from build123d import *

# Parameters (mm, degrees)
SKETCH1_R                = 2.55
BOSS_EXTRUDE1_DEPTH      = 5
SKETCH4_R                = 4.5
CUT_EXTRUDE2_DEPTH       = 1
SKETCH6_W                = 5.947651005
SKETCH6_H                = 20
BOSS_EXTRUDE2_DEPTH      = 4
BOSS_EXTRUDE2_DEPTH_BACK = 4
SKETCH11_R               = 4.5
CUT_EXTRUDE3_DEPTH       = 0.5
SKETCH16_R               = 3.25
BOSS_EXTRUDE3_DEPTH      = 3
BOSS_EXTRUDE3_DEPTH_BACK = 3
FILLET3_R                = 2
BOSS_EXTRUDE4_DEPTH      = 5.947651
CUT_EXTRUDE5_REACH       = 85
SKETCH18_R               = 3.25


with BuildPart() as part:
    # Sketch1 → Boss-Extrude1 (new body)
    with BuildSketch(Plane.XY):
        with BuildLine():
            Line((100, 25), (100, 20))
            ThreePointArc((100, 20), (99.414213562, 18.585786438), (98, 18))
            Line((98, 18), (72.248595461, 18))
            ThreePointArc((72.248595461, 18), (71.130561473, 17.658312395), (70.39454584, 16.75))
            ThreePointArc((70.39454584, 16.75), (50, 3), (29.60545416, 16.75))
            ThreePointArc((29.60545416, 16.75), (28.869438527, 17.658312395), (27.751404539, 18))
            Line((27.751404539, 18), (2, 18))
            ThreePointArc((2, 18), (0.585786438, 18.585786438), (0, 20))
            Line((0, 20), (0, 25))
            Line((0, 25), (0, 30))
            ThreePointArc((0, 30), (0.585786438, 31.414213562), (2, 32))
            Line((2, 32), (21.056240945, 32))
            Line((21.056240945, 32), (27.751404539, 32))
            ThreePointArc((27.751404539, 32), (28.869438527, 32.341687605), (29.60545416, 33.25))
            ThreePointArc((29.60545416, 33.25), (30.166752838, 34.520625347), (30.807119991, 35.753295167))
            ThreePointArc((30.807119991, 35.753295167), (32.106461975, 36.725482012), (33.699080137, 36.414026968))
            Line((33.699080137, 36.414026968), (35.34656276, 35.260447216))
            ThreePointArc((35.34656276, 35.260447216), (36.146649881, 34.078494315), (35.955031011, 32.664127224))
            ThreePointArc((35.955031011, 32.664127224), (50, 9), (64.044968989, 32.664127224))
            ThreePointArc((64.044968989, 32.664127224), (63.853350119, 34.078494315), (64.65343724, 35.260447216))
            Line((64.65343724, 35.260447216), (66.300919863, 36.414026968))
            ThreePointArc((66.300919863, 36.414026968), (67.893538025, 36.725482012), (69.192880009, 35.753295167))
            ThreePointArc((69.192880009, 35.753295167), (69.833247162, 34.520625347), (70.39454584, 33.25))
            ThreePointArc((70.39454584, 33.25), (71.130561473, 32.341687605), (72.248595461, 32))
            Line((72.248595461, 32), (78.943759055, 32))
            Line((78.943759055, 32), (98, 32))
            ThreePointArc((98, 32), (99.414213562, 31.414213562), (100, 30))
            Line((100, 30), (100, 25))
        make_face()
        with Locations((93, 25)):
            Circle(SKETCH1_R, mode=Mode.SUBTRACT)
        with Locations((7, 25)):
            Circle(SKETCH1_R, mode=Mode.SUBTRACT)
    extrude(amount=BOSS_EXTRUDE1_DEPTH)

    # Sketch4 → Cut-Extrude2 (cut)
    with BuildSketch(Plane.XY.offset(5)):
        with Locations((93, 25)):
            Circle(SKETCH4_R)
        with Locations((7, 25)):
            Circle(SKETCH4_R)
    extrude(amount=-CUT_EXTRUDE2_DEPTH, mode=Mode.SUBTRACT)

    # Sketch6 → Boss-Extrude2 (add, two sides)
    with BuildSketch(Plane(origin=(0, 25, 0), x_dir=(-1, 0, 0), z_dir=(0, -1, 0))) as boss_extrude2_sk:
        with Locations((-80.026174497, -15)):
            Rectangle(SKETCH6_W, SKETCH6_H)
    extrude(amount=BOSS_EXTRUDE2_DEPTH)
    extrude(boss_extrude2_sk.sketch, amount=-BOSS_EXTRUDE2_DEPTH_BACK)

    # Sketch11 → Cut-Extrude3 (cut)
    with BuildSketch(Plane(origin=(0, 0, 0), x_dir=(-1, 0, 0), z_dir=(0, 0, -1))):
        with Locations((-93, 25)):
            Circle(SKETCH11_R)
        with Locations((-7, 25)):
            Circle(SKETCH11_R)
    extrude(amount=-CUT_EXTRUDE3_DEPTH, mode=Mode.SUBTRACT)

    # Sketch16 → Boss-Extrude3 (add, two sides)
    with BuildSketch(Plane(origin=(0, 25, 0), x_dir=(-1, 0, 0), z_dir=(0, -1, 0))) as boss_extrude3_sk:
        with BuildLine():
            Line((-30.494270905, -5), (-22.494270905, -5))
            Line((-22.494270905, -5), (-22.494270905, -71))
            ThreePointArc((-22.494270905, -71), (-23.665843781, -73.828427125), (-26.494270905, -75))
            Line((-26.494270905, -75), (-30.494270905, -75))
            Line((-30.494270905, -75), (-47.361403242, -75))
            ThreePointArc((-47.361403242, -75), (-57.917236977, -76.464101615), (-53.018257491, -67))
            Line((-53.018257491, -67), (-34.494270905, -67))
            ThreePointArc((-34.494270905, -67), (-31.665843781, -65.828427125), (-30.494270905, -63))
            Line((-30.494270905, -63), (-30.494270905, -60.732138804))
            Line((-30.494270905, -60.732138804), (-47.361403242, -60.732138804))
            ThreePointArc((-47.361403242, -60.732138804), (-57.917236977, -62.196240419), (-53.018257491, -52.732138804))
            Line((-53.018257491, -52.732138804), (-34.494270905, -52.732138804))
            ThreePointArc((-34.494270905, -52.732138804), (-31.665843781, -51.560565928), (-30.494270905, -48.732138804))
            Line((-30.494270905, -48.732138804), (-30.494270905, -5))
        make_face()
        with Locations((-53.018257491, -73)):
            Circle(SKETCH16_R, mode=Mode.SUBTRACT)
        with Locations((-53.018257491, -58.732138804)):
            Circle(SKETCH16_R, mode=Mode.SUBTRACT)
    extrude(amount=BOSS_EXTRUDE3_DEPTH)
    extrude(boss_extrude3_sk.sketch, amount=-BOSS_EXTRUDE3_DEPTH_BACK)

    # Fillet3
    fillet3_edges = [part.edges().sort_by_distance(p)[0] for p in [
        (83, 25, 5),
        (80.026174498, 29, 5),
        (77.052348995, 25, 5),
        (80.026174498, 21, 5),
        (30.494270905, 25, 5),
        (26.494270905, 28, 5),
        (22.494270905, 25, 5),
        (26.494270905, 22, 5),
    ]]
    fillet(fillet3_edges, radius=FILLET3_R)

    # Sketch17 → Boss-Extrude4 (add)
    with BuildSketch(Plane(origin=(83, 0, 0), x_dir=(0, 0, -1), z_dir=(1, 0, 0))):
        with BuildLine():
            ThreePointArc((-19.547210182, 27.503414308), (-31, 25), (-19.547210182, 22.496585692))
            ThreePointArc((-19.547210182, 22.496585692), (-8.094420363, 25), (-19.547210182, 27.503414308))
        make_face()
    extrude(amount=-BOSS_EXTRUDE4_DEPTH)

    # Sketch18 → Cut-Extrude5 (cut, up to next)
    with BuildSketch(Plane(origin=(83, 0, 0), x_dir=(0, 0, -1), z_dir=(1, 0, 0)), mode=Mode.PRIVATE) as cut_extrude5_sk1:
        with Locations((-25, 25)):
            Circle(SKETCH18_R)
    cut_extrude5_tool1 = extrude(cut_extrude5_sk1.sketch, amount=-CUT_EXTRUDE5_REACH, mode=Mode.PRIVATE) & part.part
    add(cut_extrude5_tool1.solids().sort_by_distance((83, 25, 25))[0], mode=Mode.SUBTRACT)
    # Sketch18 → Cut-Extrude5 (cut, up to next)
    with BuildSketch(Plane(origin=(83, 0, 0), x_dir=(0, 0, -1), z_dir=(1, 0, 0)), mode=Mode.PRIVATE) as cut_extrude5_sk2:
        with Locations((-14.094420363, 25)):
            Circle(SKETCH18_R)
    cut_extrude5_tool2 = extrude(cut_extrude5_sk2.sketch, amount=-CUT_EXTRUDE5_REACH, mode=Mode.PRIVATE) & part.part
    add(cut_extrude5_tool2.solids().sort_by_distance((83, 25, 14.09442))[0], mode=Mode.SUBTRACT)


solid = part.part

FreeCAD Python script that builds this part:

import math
import FreeCAD as App
import Part
import Sketcher
from FreeCAD import Vector
Q = App.Units.Quantity


def edges_at(feature, points):
    """Names of the edges that pass closest to the given points."""
    edges = feature.Shape.Edges
    near = lambda p: min(range(len(edges)), key=lambda i: edges[i].distToShape(Part.Vertex(*p))[0])
    return sorted({f"Edge{near(p) + 1}" for p in points})

doc = App.newDocument("Part")
body = doc.addObject("PartDesign::Body", "Body")

# Sketch on XY plane
sketch1 = doc.addObject("Sketcher::SketchObject", "Sketch")
body.addObject(sketch1)
sketch1.AttachmentSupport = (doc.XY_Plane, [""])
sketch1.MapMode = "FlatFace"
sketch1.addGeometry([
    Part.ArcOfCircle(Part.Circle(Vector(98, 20, 0), Vector(0, 0, 1), 2), math.radians(-90), math.radians(0)),  # 0
    Part.LineSegment(Vector(100, 20, 0), Vector(100, 30, 0)),  # 1
    Part.ArcOfCircle(Part.Circle(Vector(98, 30, 0), Vector(0, 0, 1), 2), math.radians(0), math.radians(90)),  # 2
    Part.LineSegment(Vector(98, 32, 0), Vector(72.2, 32, 0)),  # 3
    Part.ArcOfCircle(Part.Circle(Vector(72.2, 34, 0), Vector(0, 0, 1), 2), math.radians(-158), math.radians(-90)),  # 4
    Part.ArcOfCircle(Part.Circle(Vector(50, 25, 0), Vector(0, 0, 1), 22), math.radians(22.02), math.radians(29.26)),  # 5
    Part.ArcOfCircle(Part.Circle(Vector(67.4, 34.8, 0), Vector(0, 0, 1), 2), math.radians(29), math.radians(125)),  # 6
    Part.LineSegment(Vector(66.3, 36.4, 0), Vector(64.7, 35.3, 0)),  # 7
    Part.ArcOfCircle(Part.Circle(Vector(65.8, 33.6, 0), Vector(0, 0, 1), 2), math.radians(125), math.radians(209)),  # 8
    Part.ArcOfCircle(Part.Circle(Vector(50, 25, 0), Vector(0, 0, 1), 16), math.radians(151), math.radians(389)),  # 9
    Part.ArcOfCircle(Part.Circle(Vector(34.2, 33.6, 0), Vector(0, 0, 1), 2), math.radians(-29), math.radians(55)),  # 10
    Part.LineSegment(Vector(35.3, 35.3, 0), Vector(33.7, 36.4, 0)),  # 11
    Part.ArcOfCircle(Part.Circle(Vector(32.6, 34.8, 0), Vector(0, 0, 1), 2), math.radians(55), math.radians(151)),  # 12
    Part.ArcOfCircle(Part.Circle(Vector(50, 25, 0), Vector(0, 0, 1), 22), math.radians(150.74), math.radians(157.98)),  # 13
    Part.ArcOfCircle(Part.Circle(Vector(27.8, 34, 0), Vector(0, 0, 1), 2), math.radians(-90), math.radians(-22)),  # 14
    Part.LineSegment(Vector(27.8, 32, 0), Vector(2, 32, 0)),  # 15
    Part.ArcOfCircle(Part.Circle(Vector(2, 30, 0), Vector(0, 0, 1), 2), math.radians(90), math.radians(180)),  # 16
    Part.LineSegment(Vector(0, 30, 0), Vector(0, 20, 0)),  # 17
    Part.ArcOfCircle(Part.Circle(Vector(2, 20, 0), Vector(0, 0, 1), 2), math.radians(-180), math.radians(-90)),  # 18
    Part.LineSegment(Vector(2, 18, 0), Vector(27.8, 18, 0)),  # 19
    Part.ArcOfCircle(Part.Circle(Vector(27.8, 16, 0), Vector(0, 0, 1), 2), math.radians(22), math.radians(90)),  # 20
    Part.ArcOfCircle(Part.Circle(Vector(50, 25, 0), Vector(0, 0, 1), 22), math.radians(-158), math.radians(-22)),  # 21
    Part.ArcOfCircle(Part.Circle(Vector(72.2, 16, 0), Vector(0, 0, 1), 2), math.radians(90), math.radians(158)),  # 22
    Part.LineSegment(Vector(72.2, 18, 0), Vector(98, 18, 0)),  # 23
    Part.Circle(Vector(93, 25, 0), Vector(0, 0, 1), 2.5),  # 24
    Part.Circle(Vector(7, 25, 0), Vector(0, 0, 1), 2.5),  # 25
], False)
sketch1.addConstraint([
    Sketcher.Constraint("Tangent", 0, 2, 1, 1),
    Sketcher.Constraint("Tangent", 1, 2, 2, 1),
    Sketcher.Constraint("Tangent", 2, 2, 3, 1),
    Sketcher.Constraint("Tangent", 3, 2, 4, 2),
    Sketcher.Constraint("Tangent", 4, 1, 5, 1),
    Sketcher.Constraint("Tangent", 5, 2, 6, 1),
    Sketcher.Constraint("Tangent", 6, 2, 7, 1),
    Sketcher.Constraint("Tangent", 7, 2, 8, 1),
    Sketcher.Constraint("Tangent", 8, 2, 9, 2),
    Sketcher.Constraint("Tangent", 9, 1, 10, 1),
    Sketcher.Constraint("Tangent", 10, 2, 11, 1),
    Sketcher.Constraint("Tangent", 11, 2, 12, 1),
    Sketcher.Constraint("Tangent", 12, 2, 13, 1),
    Sketcher.Constraint("Tangent", 13, 2, 14, 2),
    Sketcher.Constraint("Tangent", 14, 1, 15, 1),
    Sketcher.Constraint("Tangent", 15, 2, 16, 1),
    Sketcher.Constraint("Tangent", 16, 2, 17, 1),
    Sketcher.Constraint("Tangent", 17, 2, 18, 1),
    Sketcher.Constraint("Tangent", 18, 2, 19, 1),
    Sketcher.Constraint("Tangent", 19, 2, 20, 2),
    Sketcher.Constraint("Tangent", 20, 1, 21, 1),
    Sketcher.Constraint("Tangent", 21, 2, 22, 2),
    Sketcher.Constraint("Tangent", 22, 1, 23, 1),
    Sketcher.Constraint("Tangent", 23, 2, 0, 1),
    Sketcher.Constraint("Vertical", 1),
    Sketcher.Constraint("Horizontal", 3),
    Sketcher.Constraint("Horizontal", 15),
    Sketcher.Constraint("Vertical", 17),
    Sketcher.Constraint("Horizontal", 19),
    Sketcher.Constraint("Horizontal", 23),
    Sketcher.Constraint("Coincident", 9, 3, 5, 3),
    Sketcher.Constraint("Coincident", 13, 3, 5, 3),
    Sketcher.Constraint("Coincident", 21, 3, 5, 3),
    Sketcher.Constraint("Equal", 0, 2),
    Sketcher.Constraint("Equal", 2, 4),
    Sketcher.Constraint("Equal", 4, 6),
    Sketcher.Constraint("Equal", 6, 8),
    Sketcher.Constraint("Equal", 8, 10),
    Sketcher.Constraint("Equal", 10, 12),
    Sketcher.Constraint("Equal", 5, 13),
    Sketcher.Constraint("Equal", 12, 14),
    Sketcher.Constraint("Equal", 14, 16),
    Sketcher.Constraint("Equal", 16, 18),
    Sketcher.Constraint("Equal", 18, 20),
    Sketcher.Constraint("Equal", 13, 21),
    Sketcher.Constraint("Equal", 20, 22),
    Sketcher.Constraint("Equal", 24, 25),
    Sketcher.Constraint("PointOnObject", 16, 2, -2),
    Sketcher.Constraint("Horizontal", 8, 3, 10, 3),
    Sketcher.Constraint("Horizontal", 6, 3, 12, 3),
    Sketcher.Constraint("Horizontal", 4, 3, 14, 3),
    Sketcher.Constraint("Horizontal", 0, 3, 18, 3),
    Sketcher.Constraint("Horizontal", 21, 3, 24, 3),
    Sketcher.Constraint("Horizontal", 24, 3, 25, 3),
    Sketcher.Constraint("Vertical", 14, 3, 20, 3),
    Sketcher.Constraint("Equal", 3, 15),
    Sketcher.Constraint("Radius", 0, Q("2 mm")),
    Sketcher.Constraint("Radius", 5, Q("22 mm")),
    Sketcher.Constraint("Radius", 9, Q("16 mm")),
    Sketcher.Constraint("Diameter", 24, Q("5.1 mm")),
    Sketcher.Constraint("DistanceY", 1, 1, 1, 2, Q("10 mm")),
    Sketcher.Constraint("Angle", 7, Q("-145 deg")),
    Sketcher.Constraint("DistanceX", -1, 1, 0, 3, Q("98 mm")),
    Sketcher.Constraint("DistanceY", -1, 1, 0, 3, Q("20 mm")),
    Sketcher.Constraint("DistanceX", -1, 1, 24, 3, Q("93 mm")),
    Sketcher.Constraint("DistanceX", -1, 1, 25, 3, Q("7 mm")),
    Sketcher.Constraint("DistanceY", 8, 2, 6, 2, Q("3.7499 mm")),
])
pad1 = doc.addObject("PartDesign::Pad", "Pad")
body.addObject(pad1)
pad1.Profile = sketch1
pad1.Length = 5

# Sketch on XY plane
sketch2 = doc.addObject("Sketcher::SketchObject", "Sketch001")
body.addObject(sketch2)
sketch2.AttachmentSupport = (doc.XY_Plane, [""])
sketch2.MapMode = "FlatFace"
sketch2.AttachmentOffset = App.Placement(Vector(0, 0, 5), App.Rotation())
sketch2.addGeometry([
    Part.Circle(Vector(93, 25, 0), Vector(0, 0, 1), 4.5),
    Part.Circle(Vector(7, 25, 0), Vector(0, 0, 1), 4.5),
], False)
sketch2.addConstraint([
    Sketcher.Constraint("Equal", 0, 1),
    Sketcher.Constraint("Horizontal", 0, 3, 1, 3),
    Sketcher.Constraint("Diameter", 0, Q("9 mm")),
    Sketcher.Constraint("DistanceX", -1, 1, 0, 3, Q("93 mm")),
    Sketcher.Constraint("DistanceY", -1, 1, 0, 3, Q("25 mm")),
    Sketcher.Constraint("DistanceX", -1, 1, 1, 3, Q("7 mm")),
])
pocket1 = doc.addObject("PartDesign::Pocket", "Pocket")
body.addObject(pocket1)
pocket1.Profile = sketch2
pocket1.Length = 1

# Sketch on XZ plane
sketch3 = doc.addObject("Sketcher::SketchObject", "Sketch002")
body.addObject(sketch3)
sketch3.AttachmentSupport = (doc.XZ_Plane, [""])
sketch3.MapMode = "FlatFace"
sketch3.AttachmentOffset = App.Placement(Vector(0, 0, -25), App.Rotation())
sketch3.addGeometry([
    Part.LineSegment(Vector(83, 5, 0), Vector(83, 25, 0)),
    Part.LineSegment(Vector(83, 25, 0), Vector(77, 25, 0)),
    Part.LineSegment(Vector(77, 25, 0), Vector(77, 5, 0)),
    Part.LineSegment(Vector(77, 5, 0), Vector(83, 5, 0)),
], False)
sketch3.addConstraint([
    Sketcher.Constraint("Coincident", 0, 2, 1, 1),
    Sketcher.Constraint("Coincident", 1, 2, 2, 1),
    Sketcher.Constraint("Coincident", 2, 2, 3, 1),
    Sketcher.Constraint("Coincident", 3, 2, 0, 1),
    Sketcher.Constraint("Vertical", 0),
    Sketcher.Constraint("Horizontal", 1),
    Sketcher.Constraint("Vertical", 2),
    Sketcher.Constraint("Horizontal", 3),
    Sketcher.Constraint("DistanceY", 0, 1, 0, 2, Q("20 mm")),
    Sketcher.Constraint("DistanceX", -1, 1, 0, 2, Q("83 mm")),
    Sketcher.Constraint("DistanceY", -1, 1, 0, 2, Q("25 mm")),
    Sketcher.Constraint("DistanceX", 1, 2, 1, 1, Q("5.947651 mm")),
])
pad2 = doc.addObject("PartDesign::Pad", "Pad001")
body.addObject(pad2)
pad2.Profile = sketch3
pad2.Type = "TwoLengths"
pad2.Length = 4
pad2.Length2 = 4

# Sketch on XY plane
sketch4 = doc.addObject("Sketcher::SketchObject", "Sketch003")
body.addObject(sketch4)
sketch4.AttachmentSupport = (doc.XY_Plane, [""])
sketch4.MapMode = "FlatFace"
sketch4.addGeometry([
    Part.Circle(Vector(93, 25, 0), Vector(0, 0, 1), 4.5),
    Part.Circle(Vector(7, 25, 0), Vector(0, 0, 1), 4.5),
], False)
sketch4.addConstraint([
    Sketcher.Constraint("Equal", 0, 1),
    Sketcher.Constraint("Horizontal", 0, 3, 1, 3),
    Sketcher.Constraint("Diameter", 0, Q("9 mm")),
    Sketcher.Constraint("DistanceX", -1, 1, 0, 3, Q("93 mm")),
    Sketcher.Constraint("DistanceY", -1, 1, 0, 3, Q("25 mm")),
    Sketcher.Constraint("DistanceX", -1, 1, 1, 3, Q("7 mm")),
])
pocket2 = doc.addObject("PartDesign::Pocket", "Pocket001")
body.addObject(pocket2)
pocket2.Profile = sketch4
pocket2.Length = 0.5
pocket2.Reversed = True

# Sketch on XZ plane
sketch5 = doc.addObject("Sketcher::SketchObject", "Sketch004")
body.addObject(sketch5)
sketch5.AttachmentSupport = (doc.XZ_Plane, [""])
sketch5.MapMode = "FlatFace"
sketch5.AttachmentOffset = App.Placement(Vector(0, 0, -25), App.Rotation())
sketch5.addGeometry([
    Part.LineSegment(Vector(22.5, 5, 0), Vector(30.5, 5, 0)),  # 0
    Part.LineSegment(Vector(30.5, 5, 0), Vector(30.5, 48.7, 0)),  # 1
    Part.ArcOfCircle(Part.Circle(Vector(34.5, 48.7, 0), Vector(0, 0, 1), 4), math.radians(90), math.radians(180)),  # 2
    Part.LineSegment(Vector(34.5, 52.7, 0), Vector(53, 52.7, 0)),  # 3
    Part.ArcOfCircle(Part.Circle(Vector(53, 58.7, 0), Vector(0, 0, 1), 6), math.radians(-90), math.radians(161)),  # 4
    Part.LineSegment(Vector(47.4, 60.7, 0), Vector(30.5, 60.7, 0)),  # 5
    Part.LineSegment(Vector(30.5, 60.7, 0), Vector(30.5, 63, 0)),  # 6
    Part.ArcOfCircle(Part.Circle(Vector(34.5, 63, 0), Vector(0, 0, 1), 4), math.radians(90), math.radians(180)),  # 7
    Part.LineSegment(Vector(34.5, 67, 0), Vector(53, 67, 0)),  # 8
    Part.ArcOfCircle(Part.Circle(Vector(53, 73, 0), Vector(0, 0, 1), 6), math.radians(-90), math.radians(161)),  # 9
    Part.LineSegment(Vector(47.4, 75, 0), Vector(26.5, 75, 0)),  # 10
    Part.ArcOfCircle(Part.Circle(Vector(26.5, 71, 0), Vector(0, 0, 1), 4), math.radians(90), math.radians(180)),  # 11
    Part.LineSegment(Vector(22.5, 71, 0), Vector(22.5, 5, 0)),  # 12
    Part.Circle(Vector(53, 73, 0), Vector(0, 0, 1), 3.2),  # 13
    Part.Circle(Vector(53, 58.7, 0), Vector(0, 0, 1), 3.2),  # 14
], False)
sketch5.addConstraint([
    Sketcher.Constraint("Coincident", 0, 2, 1, 1),
    Sketcher.Constraint("Tangent", 1, 2, 2, 2),
    Sketcher.Constraint("Tangent", 2, 1, 3, 1),
    Sketcher.Constraint("Tangent", 3, 2, 4, 1),
    Sketcher.Constraint("Coincident", 4, 2, 5, 1),
    Sketcher.Constraint("Coincident", 5, 2, 6, 1),
    Sketcher.Constraint("Tangent", 6, 2, 7, 2),
    Sketcher.Constraint("Tangent", 7, 1, 8, 1),
    Sketcher.Constraint("Tangent", 8, 2, 9, 1),
    Sketcher.Constraint("Coincident", 9, 2, 10, 1),
    Sketcher.Constraint("Tangent", 10, 2, 11, 1),
    Sketcher.Constraint("Tangent", 11, 2, 12, 1),
    Sketcher.Constraint("Coincident", 12, 2, 0, 1),
    Sketcher.Constraint("Horizontal", 0),
    Sketcher.Constraint("Vertical", 1),
    Sketcher.Constraint("Horizontal", 3),
    Sketcher.Constraint("Horizontal", 5),
    Sketcher.Constraint("Vertical", 6),
    Sketcher.Constraint("Horizontal", 8),
    Sketcher.Constraint("Horizontal", 10),
    Sketcher.Constraint("Vertical", 12),
    Sketcher.Constraint("Coincident", 13, 3, 9, 3),
    Sketcher.Constraint("Coincident", 14, 3, 4, 3),
    Sketcher.Constraint("Equal", 2, 7),
    Sketcher.Constraint("Equal", 4, 9),
    Sketcher.Constraint("Equal", 7, 11),
    Sketcher.Constraint("Equal", 13, 14),
    Sketcher.Constraint("Vertical", 2, 3, 7, 3),
    Sketcher.Constraint("Vertical", 4, 3, 9, 3),
    Sketcher.Constraint("Vertical", 4, 2, 9, 2),
    Sketcher.Constraint("Radius", 2, Q("4 mm")),
    Sketcher.Constraint("Radius", 4, Q("6 mm")),
    Sketcher.Constraint("Diameter", 13, Q("6.5 mm")),
    Sketcher.Constraint("DistanceX", 0, 1, 0, 2, Q("8 mm")),
    Sketcher.Constraint("DistanceY", 12, 2, 12, 1, Q("66 mm")),
    Sketcher.Constraint("DistanceY", -1, 1, 7, 3, Q("63 mm")),
    Sketcher.Constraint("DistanceY", -1, 1, 11, 3, Q("71 mm")),
    Sketcher.Constraint("DistanceY", 1, 1, 1, 2, Q("43.732139 mm")),
    Sketcher.Constraint("DistanceX", 3, 1, 3, 2, Q("18.523987 mm")),
    Sketcher.Constraint("DistanceX", -1, 1, 2, 3, Q("34.494271 mm")),
])
pad3 = doc.addObject("PartDesign::Pad", "Pad002")
body.addObject(pad3)
pad3.Profile = sketch5
pad3.Type = "TwoLengths"
pad3.Length = 3
pad3.Length2 = 3
doc.recompute()

fillet = doc.addObject("PartDesign::Fillet", "Fillet")
body.addObject(fillet)
fillet.Base = (pad3, edges_at(pad3, [
    (83, 25, 5),
    (80.026, 29, 5),
    (77.052, 25, 5),
    (80.026, 21, 5),
    (30.494, 25, 5),
    (26.494, 28, 5),
    (22.494, 25, 5),
    (26.494, 22, 5),
]))
fillet.Radius = 2

# Sketch on YZ plane
sketch6 = doc.addObject("Sketcher::SketchObject", "Sketch005")
body.addObject(sketch6)
sketch6.AttachmentSupport = (doc.YZ_Plane, [""])
sketch6.MapMode = "FlatFace"
sketch6.AttachmentOffset = App.Placement(Vector(0, 0, 83), App.Rotation())
sketch6.addGeometry([
    Part.ArcOfCircle(Part.Circle(Vector(25, 25, 0), Vector(0, 0, 1), 6), math.radians(-65), math.radians(245)),
    Part.ArcOfCircle(Part.Circle(Vector(25, 14, 0), Vector(0, 0, 1), 6), math.radians(115), math.radians(425)),
], False)
sketch6.addConstraint([
    Sketcher.Constraint("Coincident", 0, 1, 1, 2),
    Sketcher.Constraint("Coincident", 1, 1, 0, 2),
    Sketcher.Constraint("Equal", 0, 1),
    Sketcher.Constraint("Horizontal", 0, 1, 1, 1),
    Sketcher.Constraint("Radius", 0, Q("6 mm")),
    Sketcher.Constraint("DistanceX", -1, 1, 0, 3, Q("25 mm")),
    Sketcher.Constraint("DistanceY", -1, 1, 0, 3, Q("25 mm")),
    Sketcher.Constraint("DistanceY", -1, 1, 1, 3, Q("14.09442 mm")),
])
pad4 = doc.addObject("PartDesign::Pad", "Pad003")
body.addObject(pad4)
pad4.Profile = sketch6
pad4.Length = 5.947651
pad4.Reversed = True

# Sketch on YZ plane
sketch7 = doc.addObject("Sketcher::SketchObject", "Sketch006")
body.addObject(sketch7)
sketch7.AttachmentSupport = (doc.YZ_Plane, [""])
sketch7.MapMode = "FlatFace"
sketch7.AttachmentOffset = App.Placement(Vector(0, 0, 83), App.Rotation())
sketch7.addGeometry(Part.Circle(Vector(25, 25, 0), Vector(0, 0, 1), 3.2), False)
sketch7.addConstraint([
    Sketcher.Constraint("Diameter", 0, Q("6.5 mm")),
    Sketcher.Constraint("DistanceX", -1, 1, 0, 3, Q("25 mm")),
    Sketcher.Constraint("DistanceY", -1, 1, 0, 3, Q("25 mm")),
])
pocket3 = doc.addObject("PartDesign::Pocket", "Pocket002")
body.addObject(pocket3)
pocket3.Profile = sketch7
pocket3.Type = "UpToFirst"

# Sketch on YZ plane
sketch8 = doc.addObject("Sketcher::SketchObject", "Sketch007")
body.addObject(sketch8)
sketch8.AttachmentSupport = (doc.YZ_Plane, [""])
sketch8.MapMode = "FlatFace"
sketch8.AttachmentOffset = App.Placement(Vector(0, 0, 83), App.Rotation())
sketch8.addGeometry(Part.Circle(Vector(25, 14.1, 0), Vector(0, 0, 1), 3.2), False)
sketch8.addConstraint([
    Sketcher.Constraint("Diameter", 0, Q("6.5 mm")),
    Sketcher.Constraint("DistanceX", -1, 1, 0, 3, Q("25 mm")),
    Sketcher.Constraint("DistanceY", -1, 1, 0, 3, Q("14.09442 mm")),
])
pocket4 = doc.addObject("PartDesign::Pocket", "Pocket003")
body.addObject(pocket4)
pocket4.Profile = sketch8
pocket4.Type = "UpToFirst"

doc.recompute()
